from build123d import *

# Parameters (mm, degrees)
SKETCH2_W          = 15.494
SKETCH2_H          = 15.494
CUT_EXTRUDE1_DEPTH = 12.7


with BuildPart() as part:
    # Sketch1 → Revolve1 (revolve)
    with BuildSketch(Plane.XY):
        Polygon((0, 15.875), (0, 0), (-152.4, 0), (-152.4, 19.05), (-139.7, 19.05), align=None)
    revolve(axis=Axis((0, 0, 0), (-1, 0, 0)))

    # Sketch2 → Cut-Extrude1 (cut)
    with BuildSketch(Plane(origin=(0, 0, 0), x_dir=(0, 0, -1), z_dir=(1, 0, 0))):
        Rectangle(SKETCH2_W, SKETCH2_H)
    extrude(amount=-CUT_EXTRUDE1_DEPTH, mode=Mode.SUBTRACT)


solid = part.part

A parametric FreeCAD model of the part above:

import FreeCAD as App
import Part
import Sketcher
Q = App.Units.Quantity

doc = App.newDocument("Part")
body = doc.addObject("PartDesign::Body", "Body")

# Sketch on XY plane
sketch1 = body.newObject("Sketcher::SketchObject", "Sketch")
sketch1.AttachmentSupport = (doc.getObject("XY_Plane"), [""])
sketch1.MapMode = "FlatFace"
sketch1.addGeometry([
    Part.LineSegment(App.Vector(0, 0, 0), App.Vector(0, 16, 0)),  # 0
    Part.LineSegment(App.Vector(0, 16, 0), App.Vector(-140, 19, 0)),  # 1
    Part.LineSegment(App.Vector(-140, 19, 0), App.Vector(-152, 19, 0)),  # 2
    Part.LineSegment(App.Vector(-152, 19, 0), App.Vector(-152, 0, 0)),  # 3
    Part.LineSegment(App.Vector(-152, 0, 0), App.Vector(0, 0, 0)),  # 4
], False)
sketch1.addConstraint([
    Sketcher.Constraint("Coincident", 0, 2, 1, 1),
    Sketcher.Constraint("Coincident", 1, 2, 2, 1),
    Sketcher.Constraint("Coincident", 2, 2, 3, 1),
    Sketcher.Constraint("Coincident", 3, 2, 4, 1),
    Sketcher.Constraint("Coincident", 4, 2, 0, 1),
    Sketcher.Constraint("Vertical", 0),
    Sketcher.Constraint("Horizontal", 2),
    Sketcher.Constraint("Vertical", 3),
    Sketcher.Constraint("Horizontal", 4),
    Sketcher.Constraint("Coincident", 4, 2, -1, 1),
    Sketcher.Constraint("DistanceX", 4, 1, 4, 2, Q("6 in")),
    Sketcher.Constraint("DistanceX", 2, 2, 2, 1, Q("0.5 in")),
    Sketcher.Constraint("DistanceY", 3, 2, 3, 1, Q("0.75 in")),
    Sketcher.Constraint("DistanceY", 0, 1, 0, 2, Q("0.625 in")),
])
revolution = body.newObject("PartDesign::Revolution", "Revolution")
revolution.Profile = sketch1
revolution.ReferenceAxis = (sketch1, ["H_Axis"])
revolution.Angle = 360

# Sketch on YZ plane
sketch2 = body.newObject("Sketcher::SketchObject", "Sketch001")
sketch2.AttachmentSupport = (doc.getObject("YZ_Plane"), [""])
sketch2.MapMode = "FlatFace"
sketch2.addGeometry([
    Part.LineSegment(App.Vector(8, 8, 0), App.Vector(-8, 8, 0)),
    Part.LineSegment(App.Vector(-8, 8, 0), App.Vector(-8, -8, 0)),
    Part.LineSegment(App.Vector(-8, -8, 0), App.Vector(8, -8, 0)),
    Part.LineSegment(App.Vector(8, -8, 0), App.Vector(8, 8, 0)),
], False)
sketch2.addConstraint([
    Sketcher.Constraint("Coincident", 0, 2, 1, 1),
    Sketcher.Constraint("Coincident", 1, 2, 2, 1),
    Sketcher.Constraint("Coincident", 2, 2, 3, 1),
    Sketcher.Constraint("Coincident", 3, 2, 0, 1),
    Sketcher.Constraint("Horizontal", 0),
    Sketcher.Constraint("Vertical", 1),
    Sketcher.Constraint("Horizontal", 2),
    Sketcher.Constraint("Vertical", 3),
    Sketcher.Constraint("Symmetric", 0, 2, 2, 2, -1, 1),
    Sketcher.Constraint("Equal", 2, 1),
    Sketcher.Constraint("DistanceX", 0, 2, 0, 1, Q("0.61 in")),
])
pocket1 = body.newObject("PartDesign::Pocket", "Pocket")
pocket1.Profile = sketch2
pocket1.Length = Q("0.5 in")

doc.recompute()
